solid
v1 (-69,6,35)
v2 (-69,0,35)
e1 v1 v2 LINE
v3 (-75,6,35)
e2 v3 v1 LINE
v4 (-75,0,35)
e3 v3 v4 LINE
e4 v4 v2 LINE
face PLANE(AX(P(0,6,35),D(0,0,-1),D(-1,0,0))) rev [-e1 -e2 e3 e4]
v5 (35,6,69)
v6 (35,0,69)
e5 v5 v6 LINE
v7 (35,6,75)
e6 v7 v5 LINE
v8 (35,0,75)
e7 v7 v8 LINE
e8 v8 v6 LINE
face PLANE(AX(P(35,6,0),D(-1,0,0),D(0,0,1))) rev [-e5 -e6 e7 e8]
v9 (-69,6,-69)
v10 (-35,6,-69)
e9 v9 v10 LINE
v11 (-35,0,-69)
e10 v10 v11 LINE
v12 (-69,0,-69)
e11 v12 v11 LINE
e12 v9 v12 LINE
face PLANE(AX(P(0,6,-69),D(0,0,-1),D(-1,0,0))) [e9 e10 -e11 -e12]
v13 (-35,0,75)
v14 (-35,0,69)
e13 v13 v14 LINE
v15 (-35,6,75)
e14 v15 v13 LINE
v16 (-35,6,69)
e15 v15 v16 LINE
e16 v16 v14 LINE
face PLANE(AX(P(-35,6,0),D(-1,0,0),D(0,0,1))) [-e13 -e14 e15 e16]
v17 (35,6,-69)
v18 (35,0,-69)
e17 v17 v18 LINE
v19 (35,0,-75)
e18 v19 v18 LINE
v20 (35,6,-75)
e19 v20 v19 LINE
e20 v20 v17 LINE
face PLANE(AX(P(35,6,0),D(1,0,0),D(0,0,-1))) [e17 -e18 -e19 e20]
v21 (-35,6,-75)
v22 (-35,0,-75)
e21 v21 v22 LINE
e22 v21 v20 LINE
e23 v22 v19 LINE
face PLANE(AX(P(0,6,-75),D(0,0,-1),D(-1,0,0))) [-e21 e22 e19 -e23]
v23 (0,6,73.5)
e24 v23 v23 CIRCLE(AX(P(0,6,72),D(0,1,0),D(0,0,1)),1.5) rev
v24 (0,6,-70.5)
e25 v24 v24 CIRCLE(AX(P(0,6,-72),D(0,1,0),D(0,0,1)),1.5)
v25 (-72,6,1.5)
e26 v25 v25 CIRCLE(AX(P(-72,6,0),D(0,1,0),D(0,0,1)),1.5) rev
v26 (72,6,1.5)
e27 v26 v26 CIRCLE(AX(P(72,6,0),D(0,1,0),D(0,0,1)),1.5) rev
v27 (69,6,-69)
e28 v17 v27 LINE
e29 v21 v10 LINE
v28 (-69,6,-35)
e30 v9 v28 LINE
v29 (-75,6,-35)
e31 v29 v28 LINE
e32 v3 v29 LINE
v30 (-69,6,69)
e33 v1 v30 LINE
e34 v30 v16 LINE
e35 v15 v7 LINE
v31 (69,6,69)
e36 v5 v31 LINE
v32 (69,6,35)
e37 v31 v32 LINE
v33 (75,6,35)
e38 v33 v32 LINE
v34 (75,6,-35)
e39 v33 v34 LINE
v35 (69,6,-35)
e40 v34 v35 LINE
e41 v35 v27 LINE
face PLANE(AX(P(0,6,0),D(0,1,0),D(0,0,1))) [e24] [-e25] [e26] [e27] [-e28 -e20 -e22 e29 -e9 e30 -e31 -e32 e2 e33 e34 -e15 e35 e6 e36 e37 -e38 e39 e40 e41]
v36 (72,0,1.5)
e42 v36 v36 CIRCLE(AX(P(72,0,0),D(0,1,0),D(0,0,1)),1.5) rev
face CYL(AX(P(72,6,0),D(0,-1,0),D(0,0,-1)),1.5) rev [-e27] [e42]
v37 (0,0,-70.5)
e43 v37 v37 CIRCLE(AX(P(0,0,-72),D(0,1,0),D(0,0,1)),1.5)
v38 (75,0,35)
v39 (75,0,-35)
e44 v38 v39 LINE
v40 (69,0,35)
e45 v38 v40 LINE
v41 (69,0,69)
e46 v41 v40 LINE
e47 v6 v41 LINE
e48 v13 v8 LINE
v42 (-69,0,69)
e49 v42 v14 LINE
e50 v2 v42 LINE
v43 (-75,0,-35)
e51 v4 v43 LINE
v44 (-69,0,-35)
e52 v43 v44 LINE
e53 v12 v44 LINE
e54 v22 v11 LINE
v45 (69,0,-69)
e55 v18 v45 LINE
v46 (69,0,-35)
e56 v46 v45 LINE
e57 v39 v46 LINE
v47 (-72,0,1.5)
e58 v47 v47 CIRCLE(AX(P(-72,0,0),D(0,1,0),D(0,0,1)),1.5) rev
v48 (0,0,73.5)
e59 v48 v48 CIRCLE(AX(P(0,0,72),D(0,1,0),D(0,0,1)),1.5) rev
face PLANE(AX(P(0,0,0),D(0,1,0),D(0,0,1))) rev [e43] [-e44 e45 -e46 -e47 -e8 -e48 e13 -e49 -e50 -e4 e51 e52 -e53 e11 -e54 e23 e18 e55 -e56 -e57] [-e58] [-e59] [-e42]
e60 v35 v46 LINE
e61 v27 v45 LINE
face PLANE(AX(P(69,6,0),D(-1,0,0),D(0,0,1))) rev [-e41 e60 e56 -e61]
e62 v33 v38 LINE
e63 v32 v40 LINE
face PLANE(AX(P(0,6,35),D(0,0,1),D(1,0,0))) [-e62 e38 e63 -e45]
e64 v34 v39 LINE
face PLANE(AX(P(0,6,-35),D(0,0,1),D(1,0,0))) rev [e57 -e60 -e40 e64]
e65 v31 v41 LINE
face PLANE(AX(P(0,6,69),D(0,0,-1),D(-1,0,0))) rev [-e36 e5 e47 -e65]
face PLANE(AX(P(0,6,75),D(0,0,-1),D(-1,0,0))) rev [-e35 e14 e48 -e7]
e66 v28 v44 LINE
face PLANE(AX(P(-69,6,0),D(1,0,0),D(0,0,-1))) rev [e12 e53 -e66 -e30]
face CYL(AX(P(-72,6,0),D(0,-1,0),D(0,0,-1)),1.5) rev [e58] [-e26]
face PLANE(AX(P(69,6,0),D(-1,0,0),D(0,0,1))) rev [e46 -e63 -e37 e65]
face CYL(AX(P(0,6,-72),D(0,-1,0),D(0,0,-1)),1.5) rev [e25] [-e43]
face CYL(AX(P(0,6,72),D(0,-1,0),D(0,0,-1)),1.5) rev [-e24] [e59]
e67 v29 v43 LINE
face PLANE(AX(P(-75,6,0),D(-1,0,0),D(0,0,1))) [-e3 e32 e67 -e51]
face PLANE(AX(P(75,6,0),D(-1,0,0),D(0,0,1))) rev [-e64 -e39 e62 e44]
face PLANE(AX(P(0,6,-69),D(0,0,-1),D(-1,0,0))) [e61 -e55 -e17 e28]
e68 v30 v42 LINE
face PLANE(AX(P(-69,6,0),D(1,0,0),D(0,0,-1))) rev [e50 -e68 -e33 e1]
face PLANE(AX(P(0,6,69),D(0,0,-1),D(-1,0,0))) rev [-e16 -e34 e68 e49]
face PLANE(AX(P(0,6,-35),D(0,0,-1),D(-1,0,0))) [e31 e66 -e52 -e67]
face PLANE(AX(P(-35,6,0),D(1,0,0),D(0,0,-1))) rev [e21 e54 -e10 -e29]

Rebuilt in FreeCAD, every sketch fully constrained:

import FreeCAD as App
import Part
import Sketcher

doc = App.newDocument("Part")
body = doc.addObject("PartDesign::Body", "Body")

# Sketch on XZ plane
sketch1 = doc.addObject("Sketcher::SketchObject", "Sketch")
body.addObject(sketch1)
sketch1.AttachmentSupport = (doc.XZ_Plane, [""])
sketch1.MapMode = "FlatFace"
sketch1.addGeometry(Part.LineSegment(App.Vector(69, -69, 0), App.Vector(35, -69, 0)), False)
sketch1.addGeometry(Part.LineSegment(App.Vector(35, -69, 0), App.Vector(35, -75, 0)), False)
sketch1.addGeometry(Part.LineSegment(App.Vector(35, -75, 0), App.Vector(-35, -75, 0)), False)
sketch1.addGeometry(Part.LineSegment(App.Vector(-35, -75, 0), App.Vector(-35, -69, 0)), False)
sketch1.addGeometry(Part.LineSegment(App.Vector(-35, -69, 0), App.Vector(-69, -69, 0)), False)
sketch1.addGeometry(Part.LineSegment(App.Vector(-69, -69, 0), App.Vector(-69, -35, 0)), False)
sketch1.addGeometry(Part.LineSegment(App.Vector(-69, -35, 0), App.Vector(-75, -35, 0)), False)
sketch1.addGeometry(Part.LineSegment(App.Vector(-75, -35, 0), App.Vector(-75, 35, 0)), False)
sketch1.addGeometry(Part.LineSegment(App.Vector(-75, 35, 0), App.Vector(-69, 35, 0)), False)
sketch1.addGeometry(Part.LineSegment(App.Vector(-69, 35, 0), App.Vector(-69, 69, 0)), False)
sketch1.addGeometry(Part.LineSegment(App.Vector(-69, 69, 0), App.Vector(-35, 69, 0)), False)
sketch1.addGeometry(Part.LineSegment(App.Vector(-35, 69, 0), App.Vector(-35, 75, 0)), False)
sketch1.addGeometry(Part.LineSegment(App.Vector(-35, 75, 0), App.Vector(35, 75, 0)), False)
sketch1.addGeometry(Part.LineSegment(App.Vector(35, 75, 0), App.Vector(35, 69, 0)), False)
sketch1.addGeometry(Part.LineSegment(App.Vector(35, 69, 0), App.Vector(69, 69, 0)), False)
sketch1.addGeometry(Part.LineSegment(App.Vector(69, 69, 0), App.Vector(69, 35, 0)), False)
sketch1.addGeometry(Part.LineSegment(App.Vector(69, 35, 0), App.Vector(75, 35, 0)), False)
sketch1.addGeometry(Part.LineSegment(App.Vector(75, 35, 0), App.Vector(75, -35, 0)), False)
sketch1.addGeometry(Part.LineSegment(App.Vector(75, -35, 0), App.Vector(69, -35, 0)), False)
sketch1.addGeometry(Part.LineSegment(App.Vector(69, -35, 0), App.Vector(69, -69, 0)), False)
sketch1.addGeometry(Part.Circle(App.Vector(0, 72, 0), App.Vector(0, 0, 1), 1.5), False)
sketch1.addGeometry(Part.Circle(App.Vector(-72, 0, 0), App.Vector(0, 0, 1), 1.5), False)
sketch1.addGeometry(Part.Circle(App.Vector(72, 0, 0), App.Vector(0, 0, 1), 1.5), False)
sketch1.addGeometry(Part.Circle(App.Vector(0, -72, 0), App.Vector(0, 0, 1), 1.5), False)
sketch1.addConstraint(Sketcher.Constraint("Coincident", 0, 2, 1, 1))
sketch1.addConstraint(Sketcher.Constraint("Coincident", 1, 2, 2, 1))
sketch1.addConstraint(Sketcher.Constraint("Coincident", 2, 2, 3, 1))
sketch1.addConstraint(Sketcher.Constraint("Coincident", 3, 2, 4, 1))
sketch1.addConstraint(Sketcher.Constraint("Coincident", 4, 2, 5, 1))
sketch1.addConstraint(Sketcher.Constraint("Coincident", 5, 2, 6, 1))
sketch1.addConstraint(Sketcher.Constraint("Coincident", 6, 2, 7, 1))
sketch1.addConstraint(Sketcher.Constraint("Coincident", 7, 2, 8, 1))
sketch1.addConstraint(Sketcher.Constraint("Coincident", 8, 2, 9, 1))
sketch1.addConstraint(Sketcher.Constraint("Coincident", 9, 2, 10, 1))
sketch1.addConstraint(Sketcher.Constraint("Coincident", 10, 2, 11, 1))
sketch1.addConstraint(Sketcher.Constraint("Coincident", 11, 2, 12, 1))
sketch1.addConstraint(Sketcher.Constraint("Coincident", 12, 2, 13, 1))
sketch1.addConstraint(Sketcher.Constraint("Coincident", 13, 2, 14, 1))
sketch1.addConstraint(Sketcher.Constraint("Coincident", 14, 2, 15, 1))
sketch1.addConstraint(Sketcher.Constraint("Coincident", 15, 2, 16, 1))
sketch1.addConstraint(Sketcher.Constraint("Coincident", 16, 2, 17, 1))
sketch1.addConstraint(Sketcher.Constraint("Coincident", 17, 2, 18, 1))
sketch1.addConstraint(Sketcher.Constraint("Coincident", 18, 2, 19, 1))
sketch1.addConstraint(Sketcher.Constraint("Coincident", 19, 2, 0, 1))
sketch1.addConstraint(Sketcher.Constraint("Horizontal", 0))
sketch1.addConstraint(Sketcher.Constraint("Vertical", 1))
sketch1.addConstraint(Sketcher.Constraint("Horizontal", 2))
sketch1.addConstraint(Sketcher.Constraint("Vertical", 3))
sketch1.addConstraint(Sketcher.Constraint("Horizontal", 4))
sketch1.addConstraint(Sketcher.Constraint("Vertical", 5))
sketch1.addConstraint(Sketcher.Constraint("Horizontal", 6))
sketch1.addConstraint(Sketcher.Constraint("Vertical", 7))
sketch1.addConstraint(Sketcher.Constraint("Horizontal", 8))
sketch1.addConstraint(Sketcher.Constraint("Vertical", 9))
sketch1.addConstraint(Sketcher.Constraint("Horizontal", 10))
sketch1.addConstraint(Sketcher.Constraint("Vertical", 11))
sketch1.addConstraint(Sketcher.Constraint("Horizontal", 12))
sketch1.addConstraint(Sketcher.Constraint("Vertical", 13))
sketch1.addConstraint(Sketcher.Constraint("Horizontal", 14))
sketch1.addConstraint(Sketcher.Constraint("Vertical", 15))
sketch1.addConstraint(Sketcher.Constraint("Horizontal", 16))
sketch1.addConstraint(Sketcher.Constraint("Vertical", 17))
sketch1.addConstraint(Sketcher.Constraint("Horizontal", 18))
sketch1.addConstraint(Sketcher.Constraint("Vertical", 19))
sketch1.addConstraint(Sketcher.Constraint("Equal", 20, 21))
sketch1.addConstraint(Sketcher.Constraint("Equal", 21, 22))
sketch1.addConstraint(Sketcher.Constraint("Equal", 22, 23))
sketch1.addConstraint(Sketcher.Constraint("Symmetric", 21, 3, 22, 3, -1, 1))
sketch1.addConstraint(Sketcher.Constraint("Symmetric", 20, 3, 23, 3, -1, 1))
sketch1.addConstraint(Sketcher.Constraint("Symmetric", 0, 2, 10, 2, -1, 1))
sketch1.addConstraint(Sketcher.Constraint("Symmetric", 2, 2, 12, 2, -1, 1))
sketch1.addConstraint(Sketcher.Constraint("Symmetric", 4, 2, 14, 2, -1, 1))
sketch1.addConstraint(Sketcher.Constraint("Symmetric", 6, 2, 16, 2, -1, 1))
sketch1.addConstraint(Sketcher.Constraint("Symmetric", 8, 2, 18, 2, -1, 1))
sketch1.addConstraint(Sketcher.Constraint("Symmetric", 0, 2, 3, 2, -2))
sketch1.addConstraint(Sketcher.Constraint("Symmetric", 8, 2, 15, 2, -2))
sketch1.addConstraint(Sketcher.Constraint("PointOnObject", 20, 3, -2))
sketch1.addConstraint(Sketcher.Constraint("PointOnObject", 21, 3, -1))
sketch1.addConstraint(Sketcher.Constraint("Equal", 18, 1))
sketch1.addConstraint(Sketcher.Constraint("Equal", 14, 5))
sketch1.addConstraint(Sketcher.Constraint("Equal", 12, 7))
sketch1.addConstraint(Sketcher.Constraint("Diameter", 20, 3.0))
sketch1.addConstraint(Sketcher.Constraint("DistanceX", 0, 2, 0, 1, 34.0))
sketch1.addConstraint(Sketcher.Constraint("DistanceX", 2, 2, 2, 1, 70.0))
sketch1.addConstraint(Sketcher.Constraint("DistanceX", 6, 2, 6, 1, 6.0))
sketch1.addConstraint(Sketcher.Constraint("DistanceY", -1, 1, 20, 3, 72.0))
sketch1.addConstraint(Sketcher.Constraint("DistanceX", 21, 3, -1, 1, 72.0))
pad1 = doc.addObject("PartDesign::Pad", "Pad")
body.addObject(pad1)
pad1.Profile = sketch1
pad1.Length = 6
pad1.Reversed = True

doc.recompute()
